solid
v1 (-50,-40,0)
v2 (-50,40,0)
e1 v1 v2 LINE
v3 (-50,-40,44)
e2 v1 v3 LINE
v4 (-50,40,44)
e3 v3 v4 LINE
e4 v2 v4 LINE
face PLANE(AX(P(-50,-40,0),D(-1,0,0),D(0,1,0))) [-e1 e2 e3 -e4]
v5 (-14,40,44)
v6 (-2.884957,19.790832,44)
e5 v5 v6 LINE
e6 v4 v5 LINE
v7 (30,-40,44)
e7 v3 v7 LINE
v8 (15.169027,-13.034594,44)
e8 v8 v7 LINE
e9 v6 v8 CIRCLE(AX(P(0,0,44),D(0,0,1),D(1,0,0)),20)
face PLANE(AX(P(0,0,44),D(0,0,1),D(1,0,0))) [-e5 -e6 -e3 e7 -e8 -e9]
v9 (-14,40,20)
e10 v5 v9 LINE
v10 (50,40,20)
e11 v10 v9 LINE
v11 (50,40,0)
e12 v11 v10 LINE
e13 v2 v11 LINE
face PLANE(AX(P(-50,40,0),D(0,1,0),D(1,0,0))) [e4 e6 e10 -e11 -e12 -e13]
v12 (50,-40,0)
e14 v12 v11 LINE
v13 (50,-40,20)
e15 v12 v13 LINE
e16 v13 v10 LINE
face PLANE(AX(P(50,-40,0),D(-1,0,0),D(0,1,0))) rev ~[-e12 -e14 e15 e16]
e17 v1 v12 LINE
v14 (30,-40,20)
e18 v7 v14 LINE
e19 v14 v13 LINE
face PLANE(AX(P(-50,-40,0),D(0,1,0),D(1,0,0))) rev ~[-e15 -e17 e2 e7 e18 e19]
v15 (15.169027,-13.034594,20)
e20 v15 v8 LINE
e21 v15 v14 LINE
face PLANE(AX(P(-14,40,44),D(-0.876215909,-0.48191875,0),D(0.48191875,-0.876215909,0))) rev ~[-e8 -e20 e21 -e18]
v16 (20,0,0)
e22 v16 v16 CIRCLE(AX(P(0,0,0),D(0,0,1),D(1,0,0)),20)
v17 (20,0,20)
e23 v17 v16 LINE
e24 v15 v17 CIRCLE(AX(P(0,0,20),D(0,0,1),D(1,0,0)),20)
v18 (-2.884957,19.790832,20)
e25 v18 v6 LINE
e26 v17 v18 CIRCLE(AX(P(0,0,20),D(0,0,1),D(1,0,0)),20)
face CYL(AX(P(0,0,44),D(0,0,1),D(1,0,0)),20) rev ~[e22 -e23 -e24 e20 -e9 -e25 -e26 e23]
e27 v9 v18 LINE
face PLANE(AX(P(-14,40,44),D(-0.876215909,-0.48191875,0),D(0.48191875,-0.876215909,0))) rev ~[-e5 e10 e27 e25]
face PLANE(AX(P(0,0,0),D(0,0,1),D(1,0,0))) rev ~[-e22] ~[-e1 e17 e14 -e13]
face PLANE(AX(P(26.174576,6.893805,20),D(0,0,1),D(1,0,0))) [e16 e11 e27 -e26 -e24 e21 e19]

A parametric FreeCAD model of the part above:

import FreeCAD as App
import Part
import Sketcher
from FreeCAD import Vector


def add_polygon(sketch, points):
    """Adds a closed chain of lines whose ends are joined by coincident constraints."""
    first, n = sketch.GeometryCount, len(points)
    for a, b in zip(points, points[1:] + points[:1]):
        sketch.addGeometry(Part.LineSegment(App.Vector(*a, 0), App.Vector(*b, 0)), False)
    for i in range(n):
        sketch.addConstraint(Sketcher.Constraint("Coincident", first + i, 2, first + (i + 1) % n, 1))

doc = App.newDocument("Part")
body = doc.addObject("PartDesign::Body", "Body")

# Sketch on XY plane
sketch1 = doc.addObject("Sketcher::SketchObject", "Sketch")
body.addObject(sketch1)
sketch1.AttachmentSupport = (doc.XY_Plane, [""])
sketch1.MapMode = "FlatFace"
add_polygon(sketch1, [(-50, 40), (-50, -40), (50, -40), (50, 40)])  # lines 0-3
sketch1.addConstraint([
    Sketcher.Constraint("Vertical", 0),
    Sketcher.Constraint("Horizontal", 1),
    Sketcher.Constraint("Vertical", 2),
    Sketcher.Constraint("Horizontal", 3),
    Sketcher.Constraint("Symmetric", 0, 2, 2, 2, -1, 1),
    Sketcher.Constraint("DistanceX", 1, 1, 1, 2, 100.0),
    Sketcher.Constraint("DistanceY", 0, 2, 0, 1, 80.0),
])
pad1 = doc.addObject("PartDesign::Pad", "Pad")
body.addObject(pad1)
pad1.Profile = sketch1
pad1.Length = 44

# Sketch on XY plane
sketch2 = doc.addObject("Sketcher::SketchObject", "Sketch001")
body.addObject(sketch2)
sketch2.AttachmentSupport = (doc.XY_Plane, [""])
sketch2.MapMode = "FlatFace"
sketch2.AttachmentOffset = App.Placement(Vector(0, 0, 44), App.Rotation())
sketch2.addGeometry(Part.Circle(Vector(0, 0, 0), Vector(0, 0, 1), 20), False)
sketch2.addConstraint([
    Sketcher.Constraint("Coincident", 0, 3, -1, 1),
    Sketcher.Constraint("Diameter", 0, 40.0),
])
pocket1 = doc.addObject("PartDesign::Pocket", "Pocket")
body.addObject(pocket1)
pocket1.Profile = sketch2
pocket1.Type = "ThroughAll"

# Sketch on XY plane
sketch3 = doc.addObject("Sketcher::SketchObject", "Sketch002")
body.addObject(sketch3)
sketch3.AttachmentSupport = (doc.XY_Plane, [""])
sketch3.MapMode = "FlatFace"
sketch3.AttachmentOffset = App.Placement(Vector(0, 0, 44), App.Rotation())
add_polygon(sketch3, [(50, 40), (-14, 40), (30, -40), (50, -40)])  # lines 0-3
sketch3.addConstraint([
    Sketcher.Constraint("Horizontal", 0),
    Sketcher.Constraint("Horizontal", 2),
    Sketcher.Constraint("Vertical", 3),
    Sketcher.Constraint("DistanceX", 0, 2, 0, 1, 64.0),
    Sketcher.Constraint("DistanceX", 2, 1, 2, 2, 20.0),
    Sketcher.Constraint("DistanceY", 3, 1, 3, 2, 80.0),
    Sketcher.Constraint("DistanceX", 0, 2, -1, 1, 14.0),
    Sketcher.Constraint("DistanceY", -1, 1, 0, 2, 40.0),
])
pocket2 = doc.addObject("PartDesign::Pocket", "Pocket001")
body.addObject(pocket2)
pocket2.Profile = sketch3
pocket2.Length = 24

doc.recompute()
